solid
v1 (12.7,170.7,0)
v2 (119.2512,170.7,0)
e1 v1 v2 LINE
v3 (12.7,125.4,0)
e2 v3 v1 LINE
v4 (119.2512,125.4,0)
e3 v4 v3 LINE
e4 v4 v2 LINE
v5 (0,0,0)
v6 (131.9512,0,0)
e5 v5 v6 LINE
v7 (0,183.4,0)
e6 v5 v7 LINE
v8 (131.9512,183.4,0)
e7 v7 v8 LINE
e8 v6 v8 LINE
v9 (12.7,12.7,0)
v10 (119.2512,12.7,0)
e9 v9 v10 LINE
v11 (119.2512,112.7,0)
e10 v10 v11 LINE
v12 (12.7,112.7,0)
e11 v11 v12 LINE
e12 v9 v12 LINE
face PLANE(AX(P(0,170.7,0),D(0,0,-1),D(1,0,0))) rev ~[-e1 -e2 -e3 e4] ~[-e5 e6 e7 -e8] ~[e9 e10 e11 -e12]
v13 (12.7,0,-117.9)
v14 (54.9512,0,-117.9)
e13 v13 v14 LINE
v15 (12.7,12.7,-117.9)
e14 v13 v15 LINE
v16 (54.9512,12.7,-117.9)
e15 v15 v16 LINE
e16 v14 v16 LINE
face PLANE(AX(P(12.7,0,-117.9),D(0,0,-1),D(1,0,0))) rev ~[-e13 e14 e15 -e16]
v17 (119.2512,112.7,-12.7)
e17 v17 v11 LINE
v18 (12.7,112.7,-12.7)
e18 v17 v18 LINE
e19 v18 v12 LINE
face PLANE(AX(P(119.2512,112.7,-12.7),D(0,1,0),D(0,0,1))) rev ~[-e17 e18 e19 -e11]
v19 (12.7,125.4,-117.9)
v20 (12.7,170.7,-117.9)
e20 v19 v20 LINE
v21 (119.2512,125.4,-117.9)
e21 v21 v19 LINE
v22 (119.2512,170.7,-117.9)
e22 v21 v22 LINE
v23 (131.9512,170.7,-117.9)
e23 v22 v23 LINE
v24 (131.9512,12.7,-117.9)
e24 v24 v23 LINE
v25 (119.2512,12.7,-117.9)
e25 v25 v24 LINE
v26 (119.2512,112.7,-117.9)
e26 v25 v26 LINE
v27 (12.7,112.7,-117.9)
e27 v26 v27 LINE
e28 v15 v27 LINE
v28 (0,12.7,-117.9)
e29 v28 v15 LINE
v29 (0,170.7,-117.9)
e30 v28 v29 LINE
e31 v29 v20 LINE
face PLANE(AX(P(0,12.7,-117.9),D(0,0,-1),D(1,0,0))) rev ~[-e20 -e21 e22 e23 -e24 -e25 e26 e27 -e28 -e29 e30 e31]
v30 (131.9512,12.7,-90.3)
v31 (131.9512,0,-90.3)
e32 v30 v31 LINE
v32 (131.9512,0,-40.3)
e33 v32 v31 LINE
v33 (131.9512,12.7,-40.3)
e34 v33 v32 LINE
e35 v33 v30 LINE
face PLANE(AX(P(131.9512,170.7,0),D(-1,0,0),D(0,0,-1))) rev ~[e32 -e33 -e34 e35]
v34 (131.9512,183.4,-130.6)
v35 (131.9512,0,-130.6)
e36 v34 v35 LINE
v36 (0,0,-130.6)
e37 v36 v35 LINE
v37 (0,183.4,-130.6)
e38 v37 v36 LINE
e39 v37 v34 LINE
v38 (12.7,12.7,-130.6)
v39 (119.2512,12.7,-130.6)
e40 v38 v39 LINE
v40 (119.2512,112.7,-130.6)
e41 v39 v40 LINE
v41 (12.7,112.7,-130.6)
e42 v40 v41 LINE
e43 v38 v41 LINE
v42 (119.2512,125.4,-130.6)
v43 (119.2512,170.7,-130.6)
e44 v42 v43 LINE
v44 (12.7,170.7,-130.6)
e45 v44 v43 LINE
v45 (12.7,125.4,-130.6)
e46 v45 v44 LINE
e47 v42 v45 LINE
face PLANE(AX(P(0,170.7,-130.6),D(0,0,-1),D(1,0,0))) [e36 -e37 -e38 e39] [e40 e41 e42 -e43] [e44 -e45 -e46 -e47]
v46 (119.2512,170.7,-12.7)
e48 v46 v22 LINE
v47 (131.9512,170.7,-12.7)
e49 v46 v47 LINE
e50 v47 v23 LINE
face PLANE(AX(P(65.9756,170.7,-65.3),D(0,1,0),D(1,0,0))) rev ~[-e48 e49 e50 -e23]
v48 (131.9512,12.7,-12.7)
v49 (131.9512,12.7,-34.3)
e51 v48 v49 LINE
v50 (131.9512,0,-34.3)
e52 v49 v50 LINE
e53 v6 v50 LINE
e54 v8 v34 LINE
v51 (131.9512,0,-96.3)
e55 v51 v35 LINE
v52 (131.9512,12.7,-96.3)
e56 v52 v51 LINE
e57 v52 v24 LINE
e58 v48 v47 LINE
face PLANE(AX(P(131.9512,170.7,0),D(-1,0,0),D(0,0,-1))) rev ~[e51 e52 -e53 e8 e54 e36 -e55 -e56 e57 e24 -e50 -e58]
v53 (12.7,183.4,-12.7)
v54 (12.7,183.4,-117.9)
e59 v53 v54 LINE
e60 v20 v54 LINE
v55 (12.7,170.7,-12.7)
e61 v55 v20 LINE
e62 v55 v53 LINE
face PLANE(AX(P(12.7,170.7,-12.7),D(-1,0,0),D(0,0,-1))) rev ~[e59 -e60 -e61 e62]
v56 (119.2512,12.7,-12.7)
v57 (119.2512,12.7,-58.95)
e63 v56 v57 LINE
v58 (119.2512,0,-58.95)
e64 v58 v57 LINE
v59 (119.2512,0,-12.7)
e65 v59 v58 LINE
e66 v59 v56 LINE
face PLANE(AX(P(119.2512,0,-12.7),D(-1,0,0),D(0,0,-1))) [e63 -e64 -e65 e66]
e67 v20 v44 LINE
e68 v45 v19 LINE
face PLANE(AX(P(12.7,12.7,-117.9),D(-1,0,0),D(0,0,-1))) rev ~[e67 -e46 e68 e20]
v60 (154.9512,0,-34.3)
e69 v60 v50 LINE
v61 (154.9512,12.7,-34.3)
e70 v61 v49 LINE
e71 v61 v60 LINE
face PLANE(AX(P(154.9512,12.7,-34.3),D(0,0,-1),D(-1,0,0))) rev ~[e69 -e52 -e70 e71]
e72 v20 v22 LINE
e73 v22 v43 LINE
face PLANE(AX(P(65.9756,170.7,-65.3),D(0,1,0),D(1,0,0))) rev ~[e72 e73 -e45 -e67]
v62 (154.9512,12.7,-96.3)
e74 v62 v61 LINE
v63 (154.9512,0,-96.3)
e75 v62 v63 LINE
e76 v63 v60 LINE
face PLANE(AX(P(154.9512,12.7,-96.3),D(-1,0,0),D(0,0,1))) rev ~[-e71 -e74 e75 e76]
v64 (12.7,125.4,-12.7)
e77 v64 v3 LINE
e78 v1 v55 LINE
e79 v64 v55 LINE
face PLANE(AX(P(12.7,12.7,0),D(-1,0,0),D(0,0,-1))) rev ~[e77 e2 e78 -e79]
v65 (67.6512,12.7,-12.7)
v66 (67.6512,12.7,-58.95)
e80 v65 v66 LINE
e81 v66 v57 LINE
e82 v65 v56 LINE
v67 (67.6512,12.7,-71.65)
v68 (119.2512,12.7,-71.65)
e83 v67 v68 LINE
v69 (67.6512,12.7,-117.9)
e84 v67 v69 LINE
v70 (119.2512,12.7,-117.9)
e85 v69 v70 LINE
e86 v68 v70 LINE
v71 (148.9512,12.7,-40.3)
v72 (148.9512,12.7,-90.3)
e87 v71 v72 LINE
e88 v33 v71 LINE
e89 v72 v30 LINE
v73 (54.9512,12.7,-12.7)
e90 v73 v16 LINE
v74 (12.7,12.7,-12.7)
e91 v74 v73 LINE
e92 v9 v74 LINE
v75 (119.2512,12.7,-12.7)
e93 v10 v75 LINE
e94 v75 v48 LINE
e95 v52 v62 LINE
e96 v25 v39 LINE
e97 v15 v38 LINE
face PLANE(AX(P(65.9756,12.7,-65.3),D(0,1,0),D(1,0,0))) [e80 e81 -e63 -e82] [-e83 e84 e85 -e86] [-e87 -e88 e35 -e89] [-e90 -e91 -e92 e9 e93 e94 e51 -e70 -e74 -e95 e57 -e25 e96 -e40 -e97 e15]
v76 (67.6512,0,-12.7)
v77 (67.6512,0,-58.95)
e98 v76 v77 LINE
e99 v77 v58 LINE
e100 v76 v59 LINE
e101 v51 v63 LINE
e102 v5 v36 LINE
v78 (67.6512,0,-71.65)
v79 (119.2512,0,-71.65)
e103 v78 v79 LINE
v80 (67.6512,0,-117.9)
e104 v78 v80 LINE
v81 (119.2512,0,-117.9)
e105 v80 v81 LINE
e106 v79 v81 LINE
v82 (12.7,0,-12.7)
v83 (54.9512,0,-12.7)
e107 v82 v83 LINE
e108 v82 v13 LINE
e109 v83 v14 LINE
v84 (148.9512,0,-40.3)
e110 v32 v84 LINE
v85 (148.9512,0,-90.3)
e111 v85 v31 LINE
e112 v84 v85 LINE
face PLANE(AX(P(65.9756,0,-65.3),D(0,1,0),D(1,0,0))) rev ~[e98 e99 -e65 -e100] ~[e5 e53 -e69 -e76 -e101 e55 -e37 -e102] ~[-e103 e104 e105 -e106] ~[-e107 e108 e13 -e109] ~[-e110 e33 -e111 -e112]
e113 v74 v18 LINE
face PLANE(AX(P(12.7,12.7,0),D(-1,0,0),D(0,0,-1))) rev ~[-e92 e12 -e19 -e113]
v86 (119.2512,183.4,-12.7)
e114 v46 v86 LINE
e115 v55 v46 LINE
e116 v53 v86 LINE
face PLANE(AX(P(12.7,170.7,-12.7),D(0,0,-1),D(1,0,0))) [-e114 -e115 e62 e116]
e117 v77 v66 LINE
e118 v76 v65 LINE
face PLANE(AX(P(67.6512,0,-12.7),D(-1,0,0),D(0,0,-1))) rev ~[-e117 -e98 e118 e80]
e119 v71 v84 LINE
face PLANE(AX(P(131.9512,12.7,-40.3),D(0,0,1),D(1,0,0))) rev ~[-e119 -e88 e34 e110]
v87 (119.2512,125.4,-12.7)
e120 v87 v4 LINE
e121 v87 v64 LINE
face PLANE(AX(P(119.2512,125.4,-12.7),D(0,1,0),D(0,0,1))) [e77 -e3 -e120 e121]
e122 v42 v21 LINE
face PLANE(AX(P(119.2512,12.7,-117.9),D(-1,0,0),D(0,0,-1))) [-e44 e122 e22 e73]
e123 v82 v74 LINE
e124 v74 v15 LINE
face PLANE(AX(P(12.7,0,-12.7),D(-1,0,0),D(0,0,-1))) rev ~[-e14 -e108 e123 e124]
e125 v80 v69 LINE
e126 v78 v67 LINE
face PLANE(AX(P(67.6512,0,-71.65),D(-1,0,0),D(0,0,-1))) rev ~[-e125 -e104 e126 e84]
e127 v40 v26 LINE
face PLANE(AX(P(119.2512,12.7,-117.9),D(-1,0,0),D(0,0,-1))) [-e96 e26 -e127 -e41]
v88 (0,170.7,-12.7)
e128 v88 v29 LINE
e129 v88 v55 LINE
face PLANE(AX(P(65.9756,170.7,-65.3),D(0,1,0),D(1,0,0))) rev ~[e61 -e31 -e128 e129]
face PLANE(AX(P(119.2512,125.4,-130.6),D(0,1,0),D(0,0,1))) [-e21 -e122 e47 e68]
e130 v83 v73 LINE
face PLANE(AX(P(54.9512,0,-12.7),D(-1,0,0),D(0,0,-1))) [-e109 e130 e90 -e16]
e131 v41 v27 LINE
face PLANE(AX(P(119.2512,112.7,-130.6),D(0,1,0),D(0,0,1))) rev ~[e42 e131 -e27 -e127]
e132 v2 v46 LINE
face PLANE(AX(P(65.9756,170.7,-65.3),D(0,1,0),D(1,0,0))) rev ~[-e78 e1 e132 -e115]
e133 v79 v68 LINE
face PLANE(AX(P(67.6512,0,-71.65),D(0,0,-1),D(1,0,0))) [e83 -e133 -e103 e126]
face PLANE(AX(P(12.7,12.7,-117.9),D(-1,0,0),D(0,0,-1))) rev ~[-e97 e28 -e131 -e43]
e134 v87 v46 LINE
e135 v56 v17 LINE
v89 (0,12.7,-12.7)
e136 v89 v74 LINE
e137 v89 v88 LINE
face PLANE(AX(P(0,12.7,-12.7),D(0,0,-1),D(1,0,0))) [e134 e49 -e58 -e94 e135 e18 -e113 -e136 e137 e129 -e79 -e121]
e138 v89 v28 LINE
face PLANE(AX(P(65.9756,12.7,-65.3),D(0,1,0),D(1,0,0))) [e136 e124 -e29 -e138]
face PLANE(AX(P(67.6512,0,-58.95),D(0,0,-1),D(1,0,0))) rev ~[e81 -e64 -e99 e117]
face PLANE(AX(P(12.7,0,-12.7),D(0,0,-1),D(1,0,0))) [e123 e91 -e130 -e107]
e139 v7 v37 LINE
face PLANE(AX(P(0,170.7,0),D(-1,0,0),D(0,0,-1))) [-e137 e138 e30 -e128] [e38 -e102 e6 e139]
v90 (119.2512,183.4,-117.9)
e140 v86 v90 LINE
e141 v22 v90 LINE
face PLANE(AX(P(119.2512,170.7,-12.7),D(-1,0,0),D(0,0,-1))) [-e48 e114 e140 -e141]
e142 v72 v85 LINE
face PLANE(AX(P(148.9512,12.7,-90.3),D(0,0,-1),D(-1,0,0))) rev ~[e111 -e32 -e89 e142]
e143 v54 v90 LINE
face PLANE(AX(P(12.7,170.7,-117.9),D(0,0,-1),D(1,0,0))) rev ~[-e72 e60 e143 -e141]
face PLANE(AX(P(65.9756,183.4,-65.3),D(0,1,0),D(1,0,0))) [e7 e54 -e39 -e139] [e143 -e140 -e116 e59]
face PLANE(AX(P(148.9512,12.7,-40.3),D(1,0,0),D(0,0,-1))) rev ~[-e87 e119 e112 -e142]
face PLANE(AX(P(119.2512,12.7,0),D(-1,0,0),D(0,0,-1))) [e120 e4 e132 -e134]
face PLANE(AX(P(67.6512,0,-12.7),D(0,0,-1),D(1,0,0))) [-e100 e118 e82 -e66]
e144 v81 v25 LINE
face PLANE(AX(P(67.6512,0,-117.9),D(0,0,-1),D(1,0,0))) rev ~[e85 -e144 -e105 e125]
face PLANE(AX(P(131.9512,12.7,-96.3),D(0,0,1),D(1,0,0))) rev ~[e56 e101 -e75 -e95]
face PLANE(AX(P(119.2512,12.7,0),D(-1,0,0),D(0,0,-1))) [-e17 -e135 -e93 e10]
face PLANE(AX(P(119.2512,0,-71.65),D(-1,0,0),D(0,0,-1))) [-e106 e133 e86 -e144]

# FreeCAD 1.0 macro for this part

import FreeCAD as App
import Part
import Sketcher
Q = App.Units.Quantity


def add_polygon(sketch, points):
    """Adds a closed chain of lines whose ends are joined by coincident constraints."""
    first, n = sketch.GeometryCount, len(points)
    for a, b in zip(points, points[1:] + points[:1]):
        sketch.addGeometry(Part.LineSegment(App.Vector(*a, 0), App.Vector(*b, 0)), False)
    for i in range(n):
        sketch.addConstraint(Sketcher.Constraint("Coincident", first + i, 2, first + (i + 1) % n, 1))

doc = App.newDocument("Part")
body = doc.addObject("PartDesign::Body", "Body")

sketch1 = doc.addObject("Sketcher::SketchObject", "Sketch")
body.addObject(sketch1)
sketch1.AttachmentSupport = (doc.XZ_Plane, [""])
sketch1.MapMode = "FlatFace"
add_polygon(sketch1, [(0, -131), (0, 0), (132, 0), (132, -131)])
add_polygon(sketch1, [(55, -13), (13, -13), (13, -118), (55, -118)])
add_polygon(sketch1, [(119, -13), (68, -13), (68, -59), (119, -59)])
add_polygon(sketch1, [(119, -72), (68, -72), (68, -118), (119, -118)])
sketch1.addConstraint(Sketcher.Constraint("Vertical", 0))
sketch1.addConstraint(Sketcher.Constraint("Horizontal", 1))
sketch1.addConstraint(Sketcher.Constraint("Vertical", 2))
sketch1.addConstraint(Sketcher.Constraint("Horizontal", 3))
sketch1.addConstraint(Sketcher.Constraint("Horizontal", 4))
sketch1.addConstraint(Sketcher.Constraint("Vertical", 5))
sketch1.addConstraint(Sketcher.Constraint("Horizontal", 6))
sketch1.addConstraint(Sketcher.Constraint("Vertical", 7))
sketch1.addConstraint(Sketcher.Constraint("Horizontal", 8))
sketch1.addConstraint(Sketcher.Constraint("Vertical", 9))
sketch1.addConstraint(Sketcher.Constraint("Horizontal", 10))
sketch1.addConstraint(Sketcher.Constraint("Vertical", 11))
sketch1.addConstraint(Sketcher.Constraint("Horizontal", 12))
sketch1.addConstraint(Sketcher.Constraint("Vertical", 13))
sketch1.addConstraint(Sketcher.Constraint("Horizontal", 14))
sketch1.addConstraint(Sketcher.Constraint("Vertical", 15))
sketch1.addConstraint(Sketcher.Constraint("Coincident", 0, 2, -1, 1))
sketch1.addConstraint(Sketcher.Constraint("Horizontal", 7, 2, 8, 2))
sketch1.addConstraint(Sketcher.Constraint("Horizontal", 6, 2, 13, 2))
sketch1.addConstraint(Sketcher.Constraint("Vertical", 9, 2, 12, 2))
sketch1.addConstraint(Sketcher.Constraint("Vertical", 11, 2, 14, 2))
sketch1.addConstraint(Sketcher.Constraint("Equal", 11, 13))
sketch1.addConstraint(Sketcher.Constraint("DistanceX", 8, 2, 8, 1, Q("51.6 mm")))
sketch1.addConstraint(Sketcher.Constraint("DistanceY", 0, 1, 0, 2, Q("130.6 mm")))
sketch1.addConstraint(Sketcher.Constraint("DistanceY", 5, 2, 5, 1, Q("105.2 mm")))
sketch1.addConstraint(Sketcher.Constraint("DistanceX", 6, 2, 2, 2, Q("77 mm")))
sketch1.addConstraint(Sketcher.Constraint("DistanceY", 9, 2, 9, 1, Q("46.25 mm")))
sketch1.addConstraint(Sketcher.Constraint("DistanceX", -1, 1, 4, 2, Q("12.7 mm")))
sketch1.addConstraint(Sketcher.Constraint("DistanceY", 4, 2, -1, 1, Q("12.7 mm")))
sketch1.addConstraint(Sketcher.Constraint("DistanceX", 7, 2, 8, 2, Q("12.7 mm")))
sketch1.addConstraint(Sketcher.Constraint("DistanceX", 1, 1, 1, 2, Q("131.9512 mm")))
pad1 = doc.addObject("PartDesign::Pad", "Pad")
body.addObject(pad1)
pad1.Profile = sketch1
pad1.Length = 12.7
pad1.Reversed = True

sketch2 = doc.addObject("Sketcher::SketchObject", "Sketch001")
body.addObject(sketch2)
sketch2.AttachmentSupport = (doc.XZ_Plane, [""])
sketch2.MapMode = "FlatFace"
sketch2.AttachmentOffset = App.Placement(App.Vector(0, 0, -12.7), App.Rotation())
add_polygon(sketch2, [(0, -131), (0, -118), (13, -118), (13, -131)])
add_polygon(sketch2, [(0, -13), (0, 0), (13, 0), (13, -13)])
add_polygon(sketch2, [(119, -131), (119, -118), (132, -118), (132, -131)])
add_polygon(sketch2, [(119, -13), (119, 0), (132, 0), (132, -13)])
sketch2.addConstraint(Sketcher.Constraint("Vertical", 0))
sketch2.addConstraint(Sketcher.Constraint("Horizontal", 1))
sketch2.addConstraint(Sketcher.Constraint("Vertical", 2))
sketch2.addConstraint(Sketcher.Constraint("Horizontal", 3))
sketch2.addConstraint(Sketcher.Constraint("Vertical", 4))
sketch2.addConstraint(Sketcher.Constraint("Horizontal", 5))
sketch2.addConstraint(Sketcher.Constraint("Vertical", 6))
sketch2.addConstraint(Sketcher.Constraint("Horizontal", 7))
sketch2.addConstraint(Sketcher.Constraint("Vertical", 8))
sketch2.addConstraint(Sketcher.Constraint("Horizontal", 9))
sketch2.addConstraint(Sketcher.Constraint("Vertical", 10))
sketch2.addConstraint(Sketcher.Constraint("Horizontal", 11))
sketch2.addConstraint(Sketcher.Constraint("Vertical", 12))
sketch2.addConstraint(Sketcher.Constraint("Horizontal", 13))
sketch2.addConstraint(Sketcher.Constraint("Vertical", 14))
sketch2.addConstraint(Sketcher.Constraint("Horizontal", 15))
sketch2.addConstraint(Sketcher.Constraint("Coincident", 4, 2, -1, 1))
sketch2.addConstraint(Sketcher.Constraint("PointOnObject", 0, 2, -2))
sketch2.addConstraint(Sketcher.Constraint("PointOnObject", 12, 2, -1))
sketch2.addConstraint(Sketcher.Constraint("Horizontal", 1, 2, 8, 2))
sketch2.addConstraint(Sketcher.Constraint("Horizontal", 3, 2, 10, 2))
sketch2.addConstraint(Sketcher.Constraint("Horizontal", 7, 2, 14, 2))
sketch2.addConstraint(Sketcher.Constraint("Vertical", 2, 2, 5, 2))
sketch2.addConstraint(Sketcher.Constraint("Vertical", 11, 2, 12, 2))
sketch2.addConstraint(Sketcher.Constraint("Vertical", 10, 2, 13, 2))
sketch2.addConstraint(Sketcher.Constraint("Equal", 7, 9))
sketch2.addConstraint(Sketcher.Constraint("Equal", 15, 0))
sketch2.addConstraint(Sketcher.Constraint("Equal", 2, 4))
sketch2.addConstraint(Sketcher.Constraint("DistanceX", 1, 1, 1, 2, Q("12.7 mm")))
sketch2.addConstraint(Sketcher.Constraint("DistanceY", 0, 2, -1, 1, Q("117.9 mm")))
sketch2.addConstraint(Sketcher.Constraint("DistanceX", -1, 1, 8, 2, Q("119.2512 mm")))
pad2 = doc.addObject("PartDesign::Pad", "Pad001")
body.addObject(pad2)
pad2.Profile = sketch2
pad2.Length = 158
pad2.Reversed = True

sketch3 = doc.addObject("Sketcher::SketchObject", "Sketch002")
body.addObject(sketch3)
sketch3.AttachmentSupport = (doc.XZ_Plane, [""])
sketch3.MapMode = "FlatFace"
sketch3.AttachmentOffset = App.Placement(App.Vector(0, 0, -170.7), App.Rotation())
add_polygon(sketch3, [(0, -131), (0, 0), (132, 0), (132, -131)])
add_polygon(sketch3, [(119, -13), (13, -13), (13, -118), (119, -118)])
sketch3.addConstraint(Sketcher.Constraint("Vertical", 0))
sketch3.addConstraint(Sketcher.Constraint("Horizontal", 1))
sketch3.addConstraint(Sketcher.Constraint("Vertical", 2))
sketch3.addConstraint(Sketcher.Constraint("Horizontal", 3))
sketch3.addConstraint(Sketcher.Constraint("Horizontal", 4))
sketch3.addConstraint(Sketcher.Constraint("Vertical", 5))
sketch3.addConstraint(Sketcher.Constraint("Horizontal", 6))
sketch3.addConstraint(Sketcher.Constraint("Vertical", 7))
sketch3.addConstraint(Sketcher.Constraint("Coincident", 0, 2, -1, 1))
sketch3.addConstraint(Sketcher.Constraint("DistanceY", 0, 1, 0, 2, Q("130.6 mm")))
sketch3.addConstraint(Sketcher.Constraint("DistanceY", 5, 2, 5, 1, Q("105.2 mm")))
sketch3.addConstraint(Sketcher.Constraint("DistanceX", -1, 1, 4, 2, Q("12.7 mm")))
sketch3.addConstraint(Sketcher.Constraint("DistanceY", 4, 2, -1, 1, Q("12.7 mm")))
sketch3.addConstraint(Sketcher.Constraint("DistanceX", 6, 2, 2, 2, Q("12.7 mm")))
sketch3.addConstraint(Sketcher.Constraint("DistanceX", 1, 1, 1, 2, Q("131.9512 mm")))
pad3 = doc.addObject("PartDesign::Pad", "Pad002")
body.addObject(pad3)
pad3.Profile = sketch3
pad3.Length = 12.7
pad3.Reversed = True

sketch4 = doc.addObject("Sketcher::SketchObject", "Sketch003")
body.addObject(sketch4)
sketch4.AttachmentSupport = (doc.YZ_Plane, [""])
sketch4.MapMode = "FlatFace"
sketch4.AttachmentOffset = App.Placement(App.Vector(0, 0, 119.2512), App.Rotation())
add_polygon(sketch4, [(125, -13), (113, -13), (113, 0), (125, 0)])
sketch4.addConstraint(Sketcher.Constraint("Horizontal", 0))
sketch4.addConstraint(Sketcher.Constraint("Vertical", 1))
sketch4.addConstraint(Sketcher.Constraint("Horizontal", 2))
sketch4.addConstraint(Sketcher.Constraint("Vertical", 3))
sketch4.addConstraint(Sketcher.Constraint("PointOnObject", 1, 2, -1))
sketch4.addConstraint(Sketcher.Constraint("Equal", 2, 1))
sketch4.addConstraint(Sketcher.Constraint("DistanceX", 0, 2, 0, 1, Q("12.7 mm")))
sketch4.addConstraint(Sketcher.Constraint("DistanceX", -1, 1, 0, 2, Q("112.7 mm")))
pad4 = doc.addObject("PartDesign::Pad", "Pad003")
body.addObject(pad4)
pad4.Profile = sketch4
pad4.Type = "UpToFirst"
pad4.Reversed = True

sketch5 = doc.addObject("Sketcher::SketchObject", "Sketch004")
body.addObject(sketch5)
sketch5.AttachmentSupport = (doc.YZ_Plane, [""])
sketch5.MapMode = "FlatFace"
sketch5.AttachmentOffset = App.Placement(App.Vector(0, 0, 119.2512), App.Rotation())
add_polygon(sketch5, [(125, -131), (113, -131), (113, -118), (125, -118)])
sketch5.addConstraint(Sketcher.Constraint("Horizontal", 0))
sketch5.addConstraint(Sketcher.Constraint("Vertical", 1))
sketch5.addConstraint(Sketcher.Constraint("Horizontal", 2))
sketch5.addConstraint(Sketcher.Constraint("Vertical", 3))
sketch5.addConstraint(Sketcher.Constraint("Equal", 2, 1))
sketch5.addConstraint(Sketcher.Constraint("DistanceX", 0, 2, 0, 1, Q("12.7 mm")))
sketch5.addConstraint(Sketcher.Constraint("DistanceX", -1, 1, 0, 2, Q("112.7 mm")))
sketch5.addConstraint(Sketcher.Constraint("DistanceY", 0, 2, -1, 1, Q("130.6 mm")))
pad5 = doc.addObject("PartDesign::Pad", "Pad004")
body.addObject(pad5)
pad5.Profile = sketch5
pad5.Type = "UpToFirst"
pad5.Reversed = True

sketch6 = doc.addObject("Sketcher::SketchObject", "Sketch005")
body.addObject(sketch6)
sketch6.AttachmentSupport = (doc.XZ_Plane, [""])
sketch6.MapMode = "FlatFace"
sketch6.AttachmentOffset = App.Placement(App.Vector(0, 0, -12.7), App.Rotation())
add_polygon(sketch6, [(155, -96), (132, -96), (132, -90), (149, -90), (149, -40), (132, -40), (132, -34), (155, -34)])
sketch6.addConstraint(Sketcher.Constraint("Horizontal", 0))
sketch6.addConstraint(Sketcher.Constraint("Vertical", 1))
sketch6.addConstraint(Sketcher.Constraint("Horizontal", 2))
sketch6.addConstraint(Sketcher.Constraint("Vertical", 3))
sketch6.addConstraint(Sketcher.Constraint("Horizontal", 4))
sketch6.addConstraint(Sketcher.Constraint("Vertical", 5))
sketch6.addConstraint(Sketcher.Constraint("Horizontal", 6))
sketch6.addConstraint(Sketcher.Constraint("Vertical", 7))
sketch6.addConstraint(Sketcher.Constraint("Vertical", 1, 2, 4, 2))
sketch6.addConstraint(Sketcher.Constraint("Equal", 1, 5))
sketch6.addConstraint(Sketcher.Constraint("DistanceX", 0, 2, 0, 1, Q("23 mm")))
sketch6.addConstraint(Sketcher.Constraint("DistanceX", 2, 1, 2, 2, Q("17 mm")))
sketch6.addConstraint(Sketcher.Constraint("DistanceY", 1, 1, 1, 2, Q("6 mm")))
sketch6.addConstraint(Sketcher.Constraint("DistanceY", 3, 1, 3, 2, Q("50 mm")))
sketch6.addConstraint(Sketcher.Constraint("DistanceY", 0, 2, -1, 1, Q("96.3 mm")))
sketch6.addConstraint(Sketcher.Constraint("DistanceX", -1, 1, 0, 2, Q("131.9512 mm")))
pad6 = doc.addObject("PartDesign::Pad", "Pad005")
body.addObject(pad6)
pad6.Profile = sketch6
pad6.Length = 12.7

doc.recompute()
